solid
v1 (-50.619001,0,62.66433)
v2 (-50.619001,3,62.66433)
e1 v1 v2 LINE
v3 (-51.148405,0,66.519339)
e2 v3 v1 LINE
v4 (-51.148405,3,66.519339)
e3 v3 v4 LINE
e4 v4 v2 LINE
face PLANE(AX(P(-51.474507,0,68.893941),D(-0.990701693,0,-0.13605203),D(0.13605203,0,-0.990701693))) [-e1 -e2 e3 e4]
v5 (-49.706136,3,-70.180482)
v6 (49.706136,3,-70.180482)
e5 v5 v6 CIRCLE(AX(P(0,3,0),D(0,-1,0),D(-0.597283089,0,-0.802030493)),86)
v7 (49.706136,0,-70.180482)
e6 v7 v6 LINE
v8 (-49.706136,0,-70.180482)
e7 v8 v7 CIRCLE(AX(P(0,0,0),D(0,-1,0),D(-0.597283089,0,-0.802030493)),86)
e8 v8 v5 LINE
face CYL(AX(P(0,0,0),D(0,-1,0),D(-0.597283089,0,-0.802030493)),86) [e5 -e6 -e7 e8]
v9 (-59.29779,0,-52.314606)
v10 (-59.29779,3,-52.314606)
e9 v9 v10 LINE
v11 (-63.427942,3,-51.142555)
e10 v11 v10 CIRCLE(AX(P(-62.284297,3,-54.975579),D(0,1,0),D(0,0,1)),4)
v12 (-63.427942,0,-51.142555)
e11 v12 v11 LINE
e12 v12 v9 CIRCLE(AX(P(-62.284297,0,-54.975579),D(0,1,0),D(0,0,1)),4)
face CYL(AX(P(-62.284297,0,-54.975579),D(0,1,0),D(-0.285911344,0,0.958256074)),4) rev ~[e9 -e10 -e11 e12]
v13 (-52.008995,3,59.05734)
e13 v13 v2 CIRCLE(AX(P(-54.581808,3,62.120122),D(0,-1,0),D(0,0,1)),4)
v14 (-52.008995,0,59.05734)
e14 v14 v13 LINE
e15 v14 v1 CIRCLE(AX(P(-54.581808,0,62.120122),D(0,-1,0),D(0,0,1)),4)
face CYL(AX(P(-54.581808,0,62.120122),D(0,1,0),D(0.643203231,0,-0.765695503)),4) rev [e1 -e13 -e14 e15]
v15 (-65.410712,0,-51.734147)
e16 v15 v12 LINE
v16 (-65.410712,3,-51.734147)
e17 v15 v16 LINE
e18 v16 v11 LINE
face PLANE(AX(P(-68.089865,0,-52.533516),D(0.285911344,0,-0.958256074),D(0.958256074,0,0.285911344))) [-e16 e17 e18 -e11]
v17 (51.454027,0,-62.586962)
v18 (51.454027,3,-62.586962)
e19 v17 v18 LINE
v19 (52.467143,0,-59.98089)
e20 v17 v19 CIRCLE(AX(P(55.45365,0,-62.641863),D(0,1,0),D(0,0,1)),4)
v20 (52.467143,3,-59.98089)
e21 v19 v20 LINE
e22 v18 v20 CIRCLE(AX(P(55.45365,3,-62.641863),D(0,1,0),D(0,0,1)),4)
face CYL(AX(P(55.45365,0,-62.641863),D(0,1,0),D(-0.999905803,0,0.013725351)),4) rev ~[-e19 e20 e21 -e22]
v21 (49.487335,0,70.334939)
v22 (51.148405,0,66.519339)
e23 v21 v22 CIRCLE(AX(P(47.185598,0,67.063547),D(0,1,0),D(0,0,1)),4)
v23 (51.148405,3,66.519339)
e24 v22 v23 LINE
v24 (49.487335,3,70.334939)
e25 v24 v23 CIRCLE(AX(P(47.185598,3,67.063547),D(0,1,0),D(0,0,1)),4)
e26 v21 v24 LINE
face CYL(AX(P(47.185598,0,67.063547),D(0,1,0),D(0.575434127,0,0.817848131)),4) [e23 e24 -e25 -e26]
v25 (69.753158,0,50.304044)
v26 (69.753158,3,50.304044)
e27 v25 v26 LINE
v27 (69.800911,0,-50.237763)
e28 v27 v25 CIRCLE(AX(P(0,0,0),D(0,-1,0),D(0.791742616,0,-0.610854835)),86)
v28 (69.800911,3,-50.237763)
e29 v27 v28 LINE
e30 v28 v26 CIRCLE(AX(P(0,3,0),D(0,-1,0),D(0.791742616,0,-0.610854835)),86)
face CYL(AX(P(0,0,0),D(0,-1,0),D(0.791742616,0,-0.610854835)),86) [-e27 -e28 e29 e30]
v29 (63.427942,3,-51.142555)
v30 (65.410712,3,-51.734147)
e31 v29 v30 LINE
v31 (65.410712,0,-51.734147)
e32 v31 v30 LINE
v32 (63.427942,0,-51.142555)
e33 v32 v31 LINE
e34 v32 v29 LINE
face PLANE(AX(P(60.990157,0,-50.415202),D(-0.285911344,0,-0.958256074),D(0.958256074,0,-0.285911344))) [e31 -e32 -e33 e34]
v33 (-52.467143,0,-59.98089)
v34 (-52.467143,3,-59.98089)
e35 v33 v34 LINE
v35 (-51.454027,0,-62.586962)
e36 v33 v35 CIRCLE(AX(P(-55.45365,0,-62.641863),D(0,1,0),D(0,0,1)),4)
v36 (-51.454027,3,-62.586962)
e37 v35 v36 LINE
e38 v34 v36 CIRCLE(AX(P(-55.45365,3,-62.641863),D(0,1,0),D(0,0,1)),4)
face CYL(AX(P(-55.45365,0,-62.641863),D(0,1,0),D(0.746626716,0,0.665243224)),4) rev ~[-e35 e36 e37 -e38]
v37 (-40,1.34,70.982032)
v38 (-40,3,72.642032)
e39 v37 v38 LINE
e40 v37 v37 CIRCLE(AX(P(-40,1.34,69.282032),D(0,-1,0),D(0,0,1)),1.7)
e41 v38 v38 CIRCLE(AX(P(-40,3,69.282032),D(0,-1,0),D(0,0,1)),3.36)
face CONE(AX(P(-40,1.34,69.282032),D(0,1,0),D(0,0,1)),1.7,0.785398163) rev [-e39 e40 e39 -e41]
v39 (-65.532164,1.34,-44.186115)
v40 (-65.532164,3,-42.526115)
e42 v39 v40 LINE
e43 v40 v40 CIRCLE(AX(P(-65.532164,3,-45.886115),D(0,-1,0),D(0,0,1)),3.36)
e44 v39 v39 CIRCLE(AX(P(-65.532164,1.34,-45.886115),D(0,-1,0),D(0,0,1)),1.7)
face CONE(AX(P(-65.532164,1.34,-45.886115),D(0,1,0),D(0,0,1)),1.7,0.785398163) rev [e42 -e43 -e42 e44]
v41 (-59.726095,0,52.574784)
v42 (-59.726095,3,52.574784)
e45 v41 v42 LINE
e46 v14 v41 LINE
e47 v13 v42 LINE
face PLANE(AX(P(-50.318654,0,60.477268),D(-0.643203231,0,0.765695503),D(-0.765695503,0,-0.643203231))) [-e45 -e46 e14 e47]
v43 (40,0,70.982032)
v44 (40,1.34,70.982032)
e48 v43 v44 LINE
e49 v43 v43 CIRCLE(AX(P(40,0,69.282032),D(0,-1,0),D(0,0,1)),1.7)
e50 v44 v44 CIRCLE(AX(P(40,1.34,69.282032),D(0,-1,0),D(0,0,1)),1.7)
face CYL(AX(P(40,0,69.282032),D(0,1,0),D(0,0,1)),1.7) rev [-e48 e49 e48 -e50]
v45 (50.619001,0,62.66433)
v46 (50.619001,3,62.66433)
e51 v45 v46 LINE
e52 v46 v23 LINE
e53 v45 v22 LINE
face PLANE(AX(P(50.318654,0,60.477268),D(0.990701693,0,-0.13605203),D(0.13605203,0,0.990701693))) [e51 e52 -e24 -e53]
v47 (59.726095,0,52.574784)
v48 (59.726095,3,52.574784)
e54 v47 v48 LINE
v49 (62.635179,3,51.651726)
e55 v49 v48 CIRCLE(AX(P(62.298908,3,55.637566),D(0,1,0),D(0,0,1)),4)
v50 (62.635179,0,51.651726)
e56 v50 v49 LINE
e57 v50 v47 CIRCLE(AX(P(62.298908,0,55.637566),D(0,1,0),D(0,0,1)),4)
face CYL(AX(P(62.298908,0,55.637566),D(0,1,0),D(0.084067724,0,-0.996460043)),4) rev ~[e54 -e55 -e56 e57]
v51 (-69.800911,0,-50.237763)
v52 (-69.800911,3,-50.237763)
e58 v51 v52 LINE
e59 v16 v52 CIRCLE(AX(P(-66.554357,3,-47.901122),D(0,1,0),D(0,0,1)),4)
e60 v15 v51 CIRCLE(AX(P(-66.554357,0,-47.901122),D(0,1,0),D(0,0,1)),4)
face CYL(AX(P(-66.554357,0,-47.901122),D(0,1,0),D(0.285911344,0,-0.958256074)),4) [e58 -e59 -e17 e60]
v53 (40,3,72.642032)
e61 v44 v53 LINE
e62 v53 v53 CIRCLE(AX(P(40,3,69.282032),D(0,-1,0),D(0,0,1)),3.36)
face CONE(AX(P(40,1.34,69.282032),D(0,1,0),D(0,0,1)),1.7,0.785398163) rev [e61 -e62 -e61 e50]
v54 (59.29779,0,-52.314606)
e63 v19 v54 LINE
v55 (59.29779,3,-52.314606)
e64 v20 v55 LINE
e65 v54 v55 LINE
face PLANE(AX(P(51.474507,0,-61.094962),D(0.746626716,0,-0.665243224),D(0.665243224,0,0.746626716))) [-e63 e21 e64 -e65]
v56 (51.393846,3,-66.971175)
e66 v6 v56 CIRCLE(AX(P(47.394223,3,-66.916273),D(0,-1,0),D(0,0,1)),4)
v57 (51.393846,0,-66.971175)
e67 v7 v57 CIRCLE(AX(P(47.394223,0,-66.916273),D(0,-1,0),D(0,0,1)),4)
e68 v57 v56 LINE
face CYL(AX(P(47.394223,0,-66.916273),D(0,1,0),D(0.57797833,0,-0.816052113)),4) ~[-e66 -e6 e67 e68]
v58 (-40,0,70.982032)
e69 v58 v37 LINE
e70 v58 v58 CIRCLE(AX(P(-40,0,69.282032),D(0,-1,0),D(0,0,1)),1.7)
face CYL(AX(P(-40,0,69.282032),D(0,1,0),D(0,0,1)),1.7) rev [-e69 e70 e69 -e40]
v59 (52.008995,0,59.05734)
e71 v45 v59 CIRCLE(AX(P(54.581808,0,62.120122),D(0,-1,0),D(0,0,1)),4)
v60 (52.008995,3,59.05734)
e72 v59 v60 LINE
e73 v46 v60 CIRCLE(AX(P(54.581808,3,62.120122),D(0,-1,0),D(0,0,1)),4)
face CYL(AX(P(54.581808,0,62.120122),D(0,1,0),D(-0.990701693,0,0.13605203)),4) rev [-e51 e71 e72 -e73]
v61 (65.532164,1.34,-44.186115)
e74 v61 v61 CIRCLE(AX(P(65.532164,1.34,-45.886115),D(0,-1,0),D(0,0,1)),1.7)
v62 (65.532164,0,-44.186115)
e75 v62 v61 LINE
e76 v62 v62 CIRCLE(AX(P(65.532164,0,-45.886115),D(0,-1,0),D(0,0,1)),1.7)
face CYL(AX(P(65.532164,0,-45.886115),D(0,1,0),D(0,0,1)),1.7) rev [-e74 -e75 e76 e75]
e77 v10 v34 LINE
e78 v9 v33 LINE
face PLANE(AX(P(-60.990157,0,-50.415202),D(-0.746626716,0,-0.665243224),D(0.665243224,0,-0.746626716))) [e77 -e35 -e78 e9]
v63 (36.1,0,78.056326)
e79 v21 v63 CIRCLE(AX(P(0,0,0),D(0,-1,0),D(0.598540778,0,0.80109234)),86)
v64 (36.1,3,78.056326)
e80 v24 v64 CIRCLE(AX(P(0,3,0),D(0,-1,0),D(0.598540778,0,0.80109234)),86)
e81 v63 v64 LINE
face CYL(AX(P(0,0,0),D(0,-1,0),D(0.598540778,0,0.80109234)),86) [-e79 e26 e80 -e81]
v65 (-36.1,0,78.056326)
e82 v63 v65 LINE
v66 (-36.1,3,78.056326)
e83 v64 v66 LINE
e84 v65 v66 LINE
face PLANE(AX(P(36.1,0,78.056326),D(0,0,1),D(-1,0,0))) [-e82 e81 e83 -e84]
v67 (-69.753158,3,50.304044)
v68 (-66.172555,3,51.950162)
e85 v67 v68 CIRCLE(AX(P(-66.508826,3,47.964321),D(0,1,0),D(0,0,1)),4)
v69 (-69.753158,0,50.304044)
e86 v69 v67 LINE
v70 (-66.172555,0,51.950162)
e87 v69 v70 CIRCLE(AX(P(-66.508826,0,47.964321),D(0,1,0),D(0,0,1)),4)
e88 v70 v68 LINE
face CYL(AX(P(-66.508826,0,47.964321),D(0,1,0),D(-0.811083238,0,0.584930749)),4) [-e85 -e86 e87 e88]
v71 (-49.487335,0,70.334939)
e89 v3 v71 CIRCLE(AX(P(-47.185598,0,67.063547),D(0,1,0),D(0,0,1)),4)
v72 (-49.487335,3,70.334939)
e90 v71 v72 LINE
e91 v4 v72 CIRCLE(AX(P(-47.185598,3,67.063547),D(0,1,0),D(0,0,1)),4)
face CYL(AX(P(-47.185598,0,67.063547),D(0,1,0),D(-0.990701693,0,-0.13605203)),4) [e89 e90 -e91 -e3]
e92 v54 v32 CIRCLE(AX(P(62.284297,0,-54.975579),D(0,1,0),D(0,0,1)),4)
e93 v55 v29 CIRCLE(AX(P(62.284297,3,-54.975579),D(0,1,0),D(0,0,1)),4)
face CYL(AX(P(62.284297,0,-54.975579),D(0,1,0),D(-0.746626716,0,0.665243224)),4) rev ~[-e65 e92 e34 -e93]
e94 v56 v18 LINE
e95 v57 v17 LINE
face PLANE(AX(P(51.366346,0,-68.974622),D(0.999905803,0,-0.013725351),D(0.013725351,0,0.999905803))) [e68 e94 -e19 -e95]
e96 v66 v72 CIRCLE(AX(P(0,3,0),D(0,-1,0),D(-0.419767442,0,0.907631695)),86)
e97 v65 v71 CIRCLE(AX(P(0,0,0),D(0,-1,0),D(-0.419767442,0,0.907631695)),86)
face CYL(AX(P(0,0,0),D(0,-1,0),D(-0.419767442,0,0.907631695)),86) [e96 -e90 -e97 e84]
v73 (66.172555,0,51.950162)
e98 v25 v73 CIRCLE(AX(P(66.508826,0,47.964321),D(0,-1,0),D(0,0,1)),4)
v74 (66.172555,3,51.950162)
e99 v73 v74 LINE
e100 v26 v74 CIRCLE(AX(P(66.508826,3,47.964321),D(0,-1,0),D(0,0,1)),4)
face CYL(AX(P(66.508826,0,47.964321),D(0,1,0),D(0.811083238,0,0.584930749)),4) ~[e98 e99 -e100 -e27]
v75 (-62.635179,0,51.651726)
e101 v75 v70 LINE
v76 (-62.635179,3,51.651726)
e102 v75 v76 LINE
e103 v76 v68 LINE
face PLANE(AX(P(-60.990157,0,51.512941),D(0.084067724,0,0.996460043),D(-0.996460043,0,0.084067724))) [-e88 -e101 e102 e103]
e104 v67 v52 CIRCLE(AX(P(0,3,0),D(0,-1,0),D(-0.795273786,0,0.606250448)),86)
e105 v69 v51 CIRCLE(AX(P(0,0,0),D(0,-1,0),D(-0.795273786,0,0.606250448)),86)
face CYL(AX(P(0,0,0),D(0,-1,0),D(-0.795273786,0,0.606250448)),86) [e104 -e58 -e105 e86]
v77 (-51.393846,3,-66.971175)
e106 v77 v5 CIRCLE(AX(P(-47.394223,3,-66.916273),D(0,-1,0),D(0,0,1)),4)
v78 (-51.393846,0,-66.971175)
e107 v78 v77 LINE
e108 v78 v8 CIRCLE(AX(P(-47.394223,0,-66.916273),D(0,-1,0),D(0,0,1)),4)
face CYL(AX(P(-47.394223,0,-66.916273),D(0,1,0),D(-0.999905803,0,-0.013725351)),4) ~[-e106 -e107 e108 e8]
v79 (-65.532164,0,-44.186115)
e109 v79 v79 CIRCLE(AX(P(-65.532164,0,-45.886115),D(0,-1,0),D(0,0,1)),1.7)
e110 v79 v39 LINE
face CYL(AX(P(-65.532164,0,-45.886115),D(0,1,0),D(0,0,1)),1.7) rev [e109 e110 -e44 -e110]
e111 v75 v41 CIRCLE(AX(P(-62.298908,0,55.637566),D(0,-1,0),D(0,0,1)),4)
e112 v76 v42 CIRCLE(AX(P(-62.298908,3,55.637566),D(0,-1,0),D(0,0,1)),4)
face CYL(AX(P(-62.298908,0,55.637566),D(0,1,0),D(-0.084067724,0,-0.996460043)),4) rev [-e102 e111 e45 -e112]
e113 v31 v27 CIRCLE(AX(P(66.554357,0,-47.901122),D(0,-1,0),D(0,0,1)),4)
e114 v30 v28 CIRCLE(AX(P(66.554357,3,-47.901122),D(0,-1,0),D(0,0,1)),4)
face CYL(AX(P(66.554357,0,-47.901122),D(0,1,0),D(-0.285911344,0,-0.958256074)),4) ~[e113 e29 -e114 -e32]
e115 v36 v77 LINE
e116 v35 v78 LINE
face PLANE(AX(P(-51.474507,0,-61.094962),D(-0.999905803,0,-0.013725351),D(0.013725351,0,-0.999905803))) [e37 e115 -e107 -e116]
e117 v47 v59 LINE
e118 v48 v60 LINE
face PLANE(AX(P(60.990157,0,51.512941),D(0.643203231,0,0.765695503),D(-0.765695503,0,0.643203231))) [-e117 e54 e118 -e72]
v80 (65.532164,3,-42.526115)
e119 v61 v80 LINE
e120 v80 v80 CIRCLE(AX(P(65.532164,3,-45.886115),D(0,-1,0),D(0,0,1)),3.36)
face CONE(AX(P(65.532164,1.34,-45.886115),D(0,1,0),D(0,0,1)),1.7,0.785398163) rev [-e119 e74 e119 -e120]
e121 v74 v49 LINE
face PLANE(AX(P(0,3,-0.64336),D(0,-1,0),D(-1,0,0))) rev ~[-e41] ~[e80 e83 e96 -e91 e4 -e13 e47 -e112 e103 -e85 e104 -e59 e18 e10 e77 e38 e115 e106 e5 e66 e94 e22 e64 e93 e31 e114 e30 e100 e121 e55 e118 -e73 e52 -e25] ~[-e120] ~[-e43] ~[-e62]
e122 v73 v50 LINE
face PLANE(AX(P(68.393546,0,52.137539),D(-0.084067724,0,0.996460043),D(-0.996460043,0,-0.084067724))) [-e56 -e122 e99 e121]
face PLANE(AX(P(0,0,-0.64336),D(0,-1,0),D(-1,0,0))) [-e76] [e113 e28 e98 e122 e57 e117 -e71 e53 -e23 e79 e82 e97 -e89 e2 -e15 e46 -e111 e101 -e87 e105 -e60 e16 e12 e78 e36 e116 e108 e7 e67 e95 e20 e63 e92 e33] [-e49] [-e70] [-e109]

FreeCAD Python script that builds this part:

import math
import FreeCAD as App
import Part
import Sketcher
from FreeCAD import Vector
Q = App.Units.Quantity


def edges_at(feature, points):
    """Names of the edges that pass closest to the given points."""
    edges = feature.Shape.Edges
    near = lambda p: min(range(len(edges)), key=lambda i: edges[i].distToShape(Part.Vertex(*p))[0])
    return sorted({f"Edge{near(p) + 1}" for p in points})

doc = App.newDocument("Part")
body = doc.addObject("PartDesign::Body", "Body")

# Sketch on XZ plane
sketch1 = body.newObject("Sketcher::SketchObject", "Sketch")
sketch1.AttachmentSupport = (doc.getObject("XZ_Plane"), [""])
sketch1.MapMode = "FlatFace"
sketch1.addGeometry(Part.LineSegment(Vector(-60.990157, -50.415202, 0), Vector(-68.089865, -52.533516, 0)), False)
sketch1.addGeometry(Part.ArcOfCircle(Part.Circle(Vector(0, 0, 0), Vector(0, 0, 1), 86), math.radians(142.681123), math.radians(217.651339)), False)
sketch1.addGeometry(Part.LineSegment(Vector(-68.393546, 52.137539, 0), Vector(-60.990157, 51.512941, 0)), False)
sketch1.addGeometry(Part.LineSegment(Vector(-60.990157, 51.512941, 0), Vector(-50.318654, 60.477268, 0)), False)
sketch1.addGeometry(Part.LineSegment(Vector(-50.318654, 60.477268, 0), Vector(-51.474507, 68.893941, 0)), False)
sketch1.addGeometry(Part.ArcOfCircle(Part.Circle(Vector(0, 0, 0), Vector(0, 0, 1), 86), math.radians(114.819906), math.radians(126.76546)), False)
sketch1.addGeometry(Part.LineSegment(Vector(-36.1, 78.056326, 0), Vector(36.1, 78.056326, 0)), False)
sketch1.addGeometry(Part.ArcOfCircle(Part.Circle(Vector(0, 0, 0), Vector(0, 0, 1), 86), math.radians(53.23454), math.radians(65.180094)), False)
sketch1.addGeometry(Part.LineSegment(Vector(51.474507, 68.893941, 0), Vector(50.318654, 60.477268, 0)), False)
sketch1.addGeometry(Part.LineSegment(Vector(50.318654, 60.477268, 0), Vector(60.990157, 51.512941, 0)), False)
sketch1.addGeometry(Part.LineSegment(Vector(60.990157, 51.512941, 0), Vector(68.393546, 52.137539, 0)), False)
sketch1.addGeometry(Part.ArcOfCircle(Part.Circle(Vector(0, 0, 0), Vector(0, 0, 1), 86), math.radians(-37.651339), math.radians(37.318877)), False)
sketch1.addGeometry(Part.LineSegment(Vector(68.089865, -52.533516, 0), Vector(60.990157, -50.415202, 0)), False)
sketch1.addGeometry(Part.LineSegment(Vector(60.990157, -50.415202, 0), Vector(51.474507, -61.094962, 0)), False)
sketch1.addGeometry(Part.LineSegment(Vector(51.474507, -61.094962, 0), Vector(51.366346, -68.974622, 0)), False)
sketch1.addGeometry(Part.ArcOfCircle(Part.Circle(Vector(0, 0, 0), Vector(0, 0, 1), 86), math.radians(-126.67556), math.radians(-53.32444)), False)
sketch1.addGeometry(Part.LineSegment(Vector(-51.366346, -68.974622, 0), Vector(-51.474507, -61.094962, 0)), False)
sketch1.addGeometry(Part.LineSegment(Vector(-51.474507, -61.094962, 0), Vector(-60.990157, -50.415202, 0)), False)
sketch1.addConstraint(Sketcher.Constraint("Coincident", 0, 2, 1, 2))
sketch1.addConstraint(Sketcher.Constraint("Coincident", 1, 1, 2, 1))
sketch1.addConstraint(Sketcher.Constraint("Coincident", 2, 2, 3, 1))
sketch1.addConstraint(Sketcher.Constraint("Coincident", 3, 2, 4, 1))
sketch1.addConstraint(Sketcher.Constraint("Coincident", 4, 2, 5, 2))
sketch1.addConstraint(Sketcher.Constraint("Coincident", 5, 1, 6, 1))
sketch1.addConstraint(Sketcher.Constraint("Coincident", 6, 2, 7, 2))
sketch1.addConstraint(Sketcher.Constraint("Coincident", 7, 1, 8, 1))
sketch1.addConstraint(Sketcher.Constraint("Coincident", 8, 2, 9, 1))
sketch1.addConstraint(Sketcher.Constraint("Coincident", 9, 2, 10, 1))
sketch1.addConstraint(Sketcher.Constraint("Coincident", 10, 2, 11, 2))
sketch1.addConstraint(Sketcher.Constraint("Coincident", 11, 1, 12, 1))
sketch1.addConstraint(Sketcher.Constraint("Coincident", 12, 2, 13, 1))
sketch1.addConstraint(Sketcher.Constraint("Coincident", 13, 2, 14, 1))
sketch1.addConstraint(Sketcher.Constraint("Coincident", 14, 2, 15, 2))
sketch1.addConstraint(Sketcher.Constraint("Coincident", 15, 1, 16, 1))
sketch1.addConstraint(Sketcher.Constraint("Coincident", 16, 2, 17, 1))
sketch1.addConstraint(Sketcher.Constraint("Coincident", 17, 2, 0, 1))
sketch1.addConstraint(Sketcher.Constraint("Horizontal", 6))
sketch1.addConstraint(Sketcher.Constraint("Coincident", 1, 3, -1, 1))
sketch1.addConstraint(Sketcher.Constraint("Coincident", 5, 3, -1, 1))
sketch1.addConstraint(Sketcher.Constraint("Coincident", 7, 3, -1, 1))
sketch1.addConstraint(Sketcher.Constraint("Coincident", 11, 3, -1, 1))
sketch1.addConstraint(Sketcher.Constraint("Coincident", 15, 3, -1, 1))
sketch1.addConstraint(Sketcher.Constraint("Equal", 1, 5))
sketch1.addConstraint(Sketcher.Constraint("Equal", 5, 7))
sketch1.addConstraint(Sketcher.Constraint("Equal", 7, 11))
sketch1.addConstraint(Sketcher.Constraint("Equal", 11, 15))
sketch1.addConstraint(Sketcher.Constraint("Symmetric", 3, 2, 8, 2, -2))
sketch1.addConstraint(Sketcher.Constraint("Symmetric", 2, 2, 9, 2, -2))
sketch1.addConstraint(Sketcher.Constraint("Symmetric", 13, 2, 16, 2, -2))
sketch1.addConstraint(Sketcher.Constraint("Symmetric", 12, 2, 17, 2, -2))
sketch1.addConstraint(Sketcher.Constraint("Horizontal", 4, 2, 7, 1))
sketch1.addConstraint(Sketcher.Constraint("Horizontal", 1, 1, 10, 2))
sketch1.addConstraint(Sketcher.Constraint("Horizontal", 0, 2, 11, 1))
sketch1.addConstraint(Sketcher.Constraint("Horizontal", 14, 2, 15, 1))
sketch1.addConstraint(Sketcher.Constraint("Vertical", 9, 2, 12, 2))
sketch1.addConstraint(Sketcher.Constraint("Vertical", 7, 1, 13, 2))
sketch1.addConstraint(Sketcher.Constraint("Radius", 1, 86.0))
sketch1.addConstraint(Sketcher.Constraint("DistanceX", 6, 1, 6, 2, 72.2))
sketch1.addConstraint(Sketcher.Constraint("DistanceY", 2, 2, 4, 2, 17.381))
sketch1.addConstraint(Sketcher.Constraint("DistanceY", 12, 2, -1, 1, 50.415202))
sketch1.addConstraint(Sketcher.Constraint("Distance", 0, 7.408989))
sketch1.addConstraint(Sketcher.Constraint("Distance", 2, 7.42969))
sketch1.addConstraint(Sketcher.Constraint("Distance", 4, 8.495668))
sketch1.addConstraint(Sketcher.Constraint("DistanceY", -1, 1, 1, 1, 52.137539))
sketch1.addConstraint(Sketcher.Constraint("DistanceY", -1, 1, 2, 2, 51.512941))
sketch1.addConstraint(Sketcher.Constraint("DistanceY", -1, 1, 3, 2, 60.477268))
sketch1.addConstraint(Sketcher.Constraint("DistanceY", 13, 2, 12, 2, 10.67976))
sketch1.addConstraint(Sketcher.Constraint("DistanceX", 14, 2, 13, 2, 0.108161))
pad1 = body.newObject("PartDesign::Pad", "Pad")
pad1.Profile = sketch1
pad1.Length = 3
pad1.Reversed = True

# Sketch on YZ plane
sketch2 = body.newObject("Sketcher::SketchObject", "Sketch001")
sketch2.AttachmentSupport = (doc.getObject("YZ_Plane"), [""])
sketch2.MapMode = "FlatFace"
sketch2.AttachmentOffset = App.Placement(Vector(0, 0, 40), App.Rotation())
sketch2.addGeometry(Part.LineSegment(Vector(0, 69.282032, 0), Vector(3, 69.282032, 0)), False)
sketch2.addGeometry(Part.LineSegment(Vector(3, 69.282032, 0), Vector(3, 72.642032, 0)), False)
sketch2.addGeometry(Part.LineSegment(Vector(3, 72.642032, 0), Vector(1.34, 70.982032, 0)), False)
sketch2.addGeometry(Part.LineSegment(Vector(1.34, 70.982032, 0), Vector(0, 70.982032, 0)), False)
sketch2.addGeometry(Part.LineSegment(Vector(0, 70.982032, 0), Vector(0, 69.282032, 0)), False)
sketch2.addGeometry(Part.LineSegment(Vector(3, 69.282032, 0), Vector(0, 69.282032, 0)), True)  # axis
sketch2.addConstraint(Sketcher.Constraint("Coincident", 0, 2, 1, 1))
sketch2.addConstraint(Sketcher.Constraint("Coincident", 1, 2, 2, 1))
sketch2.addConstraint(Sketcher.Constraint("Coincident", 2, 2, 3, 1))
sketch2.addConstraint(Sketcher.Constraint("Coincident", 3, 2, 4, 1))
sketch2.addConstraint(Sketcher.Constraint("Coincident", 4, 2, 0, 1))
sketch2.addConstraint(Sketcher.Constraint("Horizontal", 0))
sketch2.addConstraint(Sketcher.Constraint("Vertical", 1))
sketch2.addConstraint(Sketcher.Constraint("Horizontal", 3))
sketch2.addConstraint(Sketcher.Constraint("Vertical", 4))
sketch2.addConstraint(Sketcher.Constraint("Horizontal", 5))
sketch2.addConstraint(Sketcher.Constraint("Coincident", 5, 1, 0, 2))
sketch2.addConstraint(Sketcher.Constraint("PointOnObject", 3, 2, -2))
sketch2.addConstraint(Sketcher.Constraint("PointOnObject", 5, 2, -2))
sketch2.addConstraint(Sketcher.Constraint("DistanceX", 0, 1, 0, 2, 3.0))
sketch2.addConstraint(Sketcher.Constraint("Angle", 2, Q("-135 deg")))
sketch2.addConstraint(Sketcher.Constraint("DistanceY", 4, 2, 4, 1, 1.7))
sketch2.addConstraint(Sketcher.Constraint("DistanceX", 3, 2, 3, 1, 1.34))
sketch2.addConstraint(Sketcher.Constraint("DistanceY", -1, 1, 0, 2, 69.282032))
groove = body.newObject("PartDesign::Groove", "Groove")
groove.Profile = sketch2
groove.ReferenceAxis = (sketch2, ["Axis0"])
groove.Angle = 360
doc.recompute()

datumline = body.newObject("PartDesign::Line", "DatumLine")
datumline.Placement = App.Placement(Vector(0, 0, 0), App.Rotation(Vector(0, 0, 1), Vector(0.216439614, 0, -0.976296007)))
linearpattern = body.newObject("PartDesign::LinearPattern", "LinearPattern")
linearpattern.Originals = [groove]
linearpattern.Direction = (datumline, [""])
linearpattern.Mode = "offset"
linearpattern.Offset = 117.964374
linearpattern.Occurrences = 2
body.Tip = linearpattern
doc.recompute()

linearpattern2 = body.newObject("PartDesign::LinearPattern", "LinearPattern001")
linearpattern2.Originals = [groove]
linearpattern2.Direction = (doc.getObject("X_Axis"), [""])
linearpattern2.Mode = "offset"
linearpattern2.Offset = 80
linearpattern2.Occurrences = 2
linearpattern2.Reversed = True
body.Tip = linearpattern2
doc.recompute()

datumline2 = body.newObject("PartDesign::Line", "DatumLine001")
datumline2.Placement = App.Placement(Vector(0, 0, 0), App.Rotation(Vector(0, 0, 1), Vector(-0.675590208, 0, -0.737277337)))
linearpattern3 = body.newObject("PartDesign::LinearPattern", "LinearPattern002")
linearpattern3.Originals = [groove]
linearpattern3.Direction = (datumline2, [""])
linearpattern3.Mode = "offset"
linearpattern3.Offset = 156.207361
linearpattern3.Occurrences = 2
body.Tip = linearpattern3
doc.recompute()

fillet = body.newObject("PartDesign::Fillet", "Fillet")
fillet.Base = (linearpattern3, edges_at(linearpattern3, [
    (-68.09, 1.5, -52.534),
    (-60.99, 1.5, -50.415),
    (-51.475, 1.5, -61.095),
    (-51.366, 1.5, -68.975),
    (51.366, 1.5, -68.975),
    (51.475, 1.5, -61.095),
    (60.99, 1.5, -50.415),
    (68.09, 1.5, -52.534),
    (68.394, 1.5, 52.138),
    (60.99, 1.5, 51.513),
    (50.319, 1.5, 60.477),
    (51.475, 1.5, 68.894),
    (-51.475, 1.5, 68.894),
    (-50.319, 1.5, 60.477),
    (-60.99, 1.5, 51.513),
    (-68.394, 1.5, 52.138),
]))
fillet.Radius = 4

doc.recompute()
